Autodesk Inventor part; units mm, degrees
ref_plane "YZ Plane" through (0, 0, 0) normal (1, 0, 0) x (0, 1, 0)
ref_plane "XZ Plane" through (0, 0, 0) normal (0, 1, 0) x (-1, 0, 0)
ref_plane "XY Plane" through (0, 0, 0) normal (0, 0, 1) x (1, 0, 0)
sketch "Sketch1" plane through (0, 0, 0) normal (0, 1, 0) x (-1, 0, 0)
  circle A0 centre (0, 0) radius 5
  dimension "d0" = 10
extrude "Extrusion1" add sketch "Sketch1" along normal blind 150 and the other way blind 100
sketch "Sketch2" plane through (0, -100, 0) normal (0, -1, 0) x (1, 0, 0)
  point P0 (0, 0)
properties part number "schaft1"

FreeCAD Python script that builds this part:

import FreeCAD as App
import Part
import Sketcher

V = App.Vector

doc = App.newDocument("Part")
params = doc.addObject("Spreadsheet::Sheet", "Params")
for row, (alias, value) in enumerate([
    ("sketch1_diameter", "10 mm"),
    ("pad1_length", "150 mm"),
    ("pad1_length2", "100 mm"),
], start=1):
    params.set(f"A{row}", alias)
    params.set(f"B{row}", "=" + value)
    params.setAlias(f"B{row}", alias)

body = doc.addObject("PartDesign::Body", "Body")

# Sketch on XZ plane
sketch1 = doc.addObject("Sketcher::SketchObject", "Sketch")
body.addObject(sketch1)
sketch1.AttachmentSupport = (doc.XZ_Plane, [""])
sketch1.MapMode = "FlatFace"
sketch1.addGeometry(Part.Circle(V(0, 0, 0), V(0, 0, 1), 5), False)
sketch1.addConstraint(Sketcher.Constraint("Coincident", 0, 3, -1, 1))
sketch1.addConstraint(Sketcher.Constraint("Diameter", 0, 10.0))
sketch1.setExpression("Constraints[1]", "Params.sketch1_diameter")
pad1 = doc.addObject("PartDesign::Pad", "Pad")
body.addObject(pad1)
pad1.Profile = sketch1
pad1.Type = "TwoLengths"
pad1.setExpression("Length", "Params.pad1_length")
pad1.setExpression("Length2", "Params.pad1_length2")
pad1.Reversed = True

doc.recompute()
